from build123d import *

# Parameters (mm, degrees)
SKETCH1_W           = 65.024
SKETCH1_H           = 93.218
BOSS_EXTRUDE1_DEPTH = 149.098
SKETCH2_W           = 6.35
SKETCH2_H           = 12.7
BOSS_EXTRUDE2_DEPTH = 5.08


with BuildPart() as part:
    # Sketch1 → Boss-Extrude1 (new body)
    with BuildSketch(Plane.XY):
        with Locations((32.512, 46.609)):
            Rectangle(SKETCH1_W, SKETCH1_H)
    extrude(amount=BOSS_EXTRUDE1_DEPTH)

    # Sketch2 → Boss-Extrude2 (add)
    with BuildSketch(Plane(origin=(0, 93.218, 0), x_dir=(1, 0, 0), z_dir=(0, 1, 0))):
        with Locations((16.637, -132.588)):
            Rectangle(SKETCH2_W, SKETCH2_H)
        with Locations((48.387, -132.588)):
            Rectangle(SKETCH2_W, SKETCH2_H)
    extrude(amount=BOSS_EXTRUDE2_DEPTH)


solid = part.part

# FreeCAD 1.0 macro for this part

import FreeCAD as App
import Part
import Sketcher
Q = App.Units.Quantity

doc = App.newDocument("Part")
body = doc.addObject("PartDesign::Body", "Body")

# Sketch on XY plane
sketch1 = body.newObject("Sketcher::SketchObject", "Sketch")
sketch1.AttachmentSupport = (doc.getObject("XY_Plane"), [""])
sketch1.MapMode = "FlatFace"
sketch1.addGeometry([
    Part.LineSegment(App.Vector(0, 93.218, 0), App.Vector(0, 0, 0)),
    Part.LineSegment(App.Vector(0, 0, 0), App.Vector(65.024, 0, 0)),
    Part.LineSegment(App.Vector(65.024, 0, 0), App.Vector(65.024, 93.218, 0)),
    Part.LineSegment(App.Vector(65.024, 93.218, 0), App.Vector(0, 93.218, 0)),
], False)
sketch1.addConstraint([
    Sketcher.Constraint("Coincident", 0, 2, 1, 1),
    Sketcher.Constraint("Coincident", 1, 2, 2, 1),
    Sketcher.Constraint("Coincident", 2, 2, 3, 1),
    Sketcher.Constraint("Coincident", 3, 2, 0, 1),
    Sketcher.Constraint("Vertical", 0),
    Sketcher.Constraint("Horizontal", 1),
    Sketcher.Constraint("Vertical", 2),
    Sketcher.Constraint("Horizontal", 3),
    Sketcher.Constraint("Coincident", 0, 2, -1, 1),
    Sketcher.Constraint("DistanceX", 1, 1, 1, 2, Q("2.56 in")),
    Sketcher.Constraint("DistanceY", 0, 2, 0, 1, Q("3.67 in")),
])
pad1 = body.newObject("PartDesign::Pad", "Pad")
pad1.Profile = sketch1
pad1.Length = Q("5.87 in")

# Sketch on XZ plane
sketch2 = body.newObject("Sketcher::SketchObject", "Sketch001")
sketch2.AttachmentSupport = (doc.getObject("XZ_Plane"), [""])
sketch2.MapMode = "FlatFace"
sketch2.AttachmentOffset = App.Placement(App.Vector(0, 0, -3.67 * 25.4), App.Rotation())
sketch2.addGeometry([
    Part.LineSegment(App.Vector(13.462, 126.238, 0), App.Vector(13.462, 138.938, 0)),  # 0
    Part.LineSegment(App.Vector(13.462, 138.938, 0), App.Vector(19.812, 138.938, 0)),  # 1
    Part.LineSegment(App.Vector(19.812, 138.938, 0), App.Vector(19.812, 126.238, 0)),  # 2
    Part.LineSegment(App.Vector(19.812, 126.238, 0), App.Vector(13.462, 126.238, 0)),  # 3
    Part.LineSegment(App.Vector(45.212, 126.238, 0), App.Vector(45.212, 138.938, 0)),  # 4
    Part.LineSegment(App.Vector(45.212, 138.938, 0), App.Vector(51.562, 138.938, 0)),  # 5
    Part.LineSegment(App.Vector(51.562, 138.938, 0), App.Vector(51.562, 126.238, 0)),  # 6
    Part.LineSegment(App.Vector(51.562, 126.238, 0), App.Vector(45.212, 126.238, 0)),  # 7
], False)
sketch2.addConstraint([
    Sketcher.Constraint("Coincident", 0, 2, 1, 1),
    Sketcher.Constraint("Coincident", 1, 2, 2, 1),
    Sketcher.Constraint("Coincident", 2, 2, 3, 1),
    Sketcher.Constraint("Coincident", 3, 2, 0, 1),
    Sketcher.Constraint("Coincident", 4, 2, 5, 1),
    Sketcher.Constraint("Coincident", 5, 2, 6, 1),
    Sketcher.Constraint("Coincident", 6, 2, 7, 1),
    Sketcher.Constraint("Coincident", 7, 2, 4, 1),
    Sketcher.Constraint("Vertical", 0),
    Sketcher.Constraint("Horizontal", 1),
    Sketcher.Constraint("Vertical", 2),
    Sketcher.Constraint("Horizontal", 3),
    Sketcher.Constraint("Vertical", 4),
    Sketcher.Constraint("Horizontal", 5),
    Sketcher.Constraint("Vertical", 6),
    Sketcher.Constraint("Horizontal", 7),
    Sketcher.Constraint("Horizontal", 1, 2, 4, 2),
    Sketcher.Constraint("Horizontal", 3, 2, 6, 2),
    Sketcher.Constraint("Equal", 3, 5),
    Sketcher.Constraint("DistanceY", 0, 1, 0, 2, Q("0.5 in")),
    Sketcher.Constraint("DistanceX", 1, 2, 4, 2, Q("1 in")),
    Sketcher.Constraint("DistanceX", 1, 1, 1, 2, Q("0.25 in")),
    Sketcher.Constraint("DistanceX", -1, 1, 0, 2, Q("0.53 in")),
    Sketcher.Constraint("DistanceY", -1, 1, 0, 2, Q("5.47 in")),
])
pad2 = body.newObject("PartDesign::Pad", "Pad001")
pad2.Profile = sketch2
pad2.Length = Q("0.2 in")
pad2.Reversed = True

doc.recompute()
